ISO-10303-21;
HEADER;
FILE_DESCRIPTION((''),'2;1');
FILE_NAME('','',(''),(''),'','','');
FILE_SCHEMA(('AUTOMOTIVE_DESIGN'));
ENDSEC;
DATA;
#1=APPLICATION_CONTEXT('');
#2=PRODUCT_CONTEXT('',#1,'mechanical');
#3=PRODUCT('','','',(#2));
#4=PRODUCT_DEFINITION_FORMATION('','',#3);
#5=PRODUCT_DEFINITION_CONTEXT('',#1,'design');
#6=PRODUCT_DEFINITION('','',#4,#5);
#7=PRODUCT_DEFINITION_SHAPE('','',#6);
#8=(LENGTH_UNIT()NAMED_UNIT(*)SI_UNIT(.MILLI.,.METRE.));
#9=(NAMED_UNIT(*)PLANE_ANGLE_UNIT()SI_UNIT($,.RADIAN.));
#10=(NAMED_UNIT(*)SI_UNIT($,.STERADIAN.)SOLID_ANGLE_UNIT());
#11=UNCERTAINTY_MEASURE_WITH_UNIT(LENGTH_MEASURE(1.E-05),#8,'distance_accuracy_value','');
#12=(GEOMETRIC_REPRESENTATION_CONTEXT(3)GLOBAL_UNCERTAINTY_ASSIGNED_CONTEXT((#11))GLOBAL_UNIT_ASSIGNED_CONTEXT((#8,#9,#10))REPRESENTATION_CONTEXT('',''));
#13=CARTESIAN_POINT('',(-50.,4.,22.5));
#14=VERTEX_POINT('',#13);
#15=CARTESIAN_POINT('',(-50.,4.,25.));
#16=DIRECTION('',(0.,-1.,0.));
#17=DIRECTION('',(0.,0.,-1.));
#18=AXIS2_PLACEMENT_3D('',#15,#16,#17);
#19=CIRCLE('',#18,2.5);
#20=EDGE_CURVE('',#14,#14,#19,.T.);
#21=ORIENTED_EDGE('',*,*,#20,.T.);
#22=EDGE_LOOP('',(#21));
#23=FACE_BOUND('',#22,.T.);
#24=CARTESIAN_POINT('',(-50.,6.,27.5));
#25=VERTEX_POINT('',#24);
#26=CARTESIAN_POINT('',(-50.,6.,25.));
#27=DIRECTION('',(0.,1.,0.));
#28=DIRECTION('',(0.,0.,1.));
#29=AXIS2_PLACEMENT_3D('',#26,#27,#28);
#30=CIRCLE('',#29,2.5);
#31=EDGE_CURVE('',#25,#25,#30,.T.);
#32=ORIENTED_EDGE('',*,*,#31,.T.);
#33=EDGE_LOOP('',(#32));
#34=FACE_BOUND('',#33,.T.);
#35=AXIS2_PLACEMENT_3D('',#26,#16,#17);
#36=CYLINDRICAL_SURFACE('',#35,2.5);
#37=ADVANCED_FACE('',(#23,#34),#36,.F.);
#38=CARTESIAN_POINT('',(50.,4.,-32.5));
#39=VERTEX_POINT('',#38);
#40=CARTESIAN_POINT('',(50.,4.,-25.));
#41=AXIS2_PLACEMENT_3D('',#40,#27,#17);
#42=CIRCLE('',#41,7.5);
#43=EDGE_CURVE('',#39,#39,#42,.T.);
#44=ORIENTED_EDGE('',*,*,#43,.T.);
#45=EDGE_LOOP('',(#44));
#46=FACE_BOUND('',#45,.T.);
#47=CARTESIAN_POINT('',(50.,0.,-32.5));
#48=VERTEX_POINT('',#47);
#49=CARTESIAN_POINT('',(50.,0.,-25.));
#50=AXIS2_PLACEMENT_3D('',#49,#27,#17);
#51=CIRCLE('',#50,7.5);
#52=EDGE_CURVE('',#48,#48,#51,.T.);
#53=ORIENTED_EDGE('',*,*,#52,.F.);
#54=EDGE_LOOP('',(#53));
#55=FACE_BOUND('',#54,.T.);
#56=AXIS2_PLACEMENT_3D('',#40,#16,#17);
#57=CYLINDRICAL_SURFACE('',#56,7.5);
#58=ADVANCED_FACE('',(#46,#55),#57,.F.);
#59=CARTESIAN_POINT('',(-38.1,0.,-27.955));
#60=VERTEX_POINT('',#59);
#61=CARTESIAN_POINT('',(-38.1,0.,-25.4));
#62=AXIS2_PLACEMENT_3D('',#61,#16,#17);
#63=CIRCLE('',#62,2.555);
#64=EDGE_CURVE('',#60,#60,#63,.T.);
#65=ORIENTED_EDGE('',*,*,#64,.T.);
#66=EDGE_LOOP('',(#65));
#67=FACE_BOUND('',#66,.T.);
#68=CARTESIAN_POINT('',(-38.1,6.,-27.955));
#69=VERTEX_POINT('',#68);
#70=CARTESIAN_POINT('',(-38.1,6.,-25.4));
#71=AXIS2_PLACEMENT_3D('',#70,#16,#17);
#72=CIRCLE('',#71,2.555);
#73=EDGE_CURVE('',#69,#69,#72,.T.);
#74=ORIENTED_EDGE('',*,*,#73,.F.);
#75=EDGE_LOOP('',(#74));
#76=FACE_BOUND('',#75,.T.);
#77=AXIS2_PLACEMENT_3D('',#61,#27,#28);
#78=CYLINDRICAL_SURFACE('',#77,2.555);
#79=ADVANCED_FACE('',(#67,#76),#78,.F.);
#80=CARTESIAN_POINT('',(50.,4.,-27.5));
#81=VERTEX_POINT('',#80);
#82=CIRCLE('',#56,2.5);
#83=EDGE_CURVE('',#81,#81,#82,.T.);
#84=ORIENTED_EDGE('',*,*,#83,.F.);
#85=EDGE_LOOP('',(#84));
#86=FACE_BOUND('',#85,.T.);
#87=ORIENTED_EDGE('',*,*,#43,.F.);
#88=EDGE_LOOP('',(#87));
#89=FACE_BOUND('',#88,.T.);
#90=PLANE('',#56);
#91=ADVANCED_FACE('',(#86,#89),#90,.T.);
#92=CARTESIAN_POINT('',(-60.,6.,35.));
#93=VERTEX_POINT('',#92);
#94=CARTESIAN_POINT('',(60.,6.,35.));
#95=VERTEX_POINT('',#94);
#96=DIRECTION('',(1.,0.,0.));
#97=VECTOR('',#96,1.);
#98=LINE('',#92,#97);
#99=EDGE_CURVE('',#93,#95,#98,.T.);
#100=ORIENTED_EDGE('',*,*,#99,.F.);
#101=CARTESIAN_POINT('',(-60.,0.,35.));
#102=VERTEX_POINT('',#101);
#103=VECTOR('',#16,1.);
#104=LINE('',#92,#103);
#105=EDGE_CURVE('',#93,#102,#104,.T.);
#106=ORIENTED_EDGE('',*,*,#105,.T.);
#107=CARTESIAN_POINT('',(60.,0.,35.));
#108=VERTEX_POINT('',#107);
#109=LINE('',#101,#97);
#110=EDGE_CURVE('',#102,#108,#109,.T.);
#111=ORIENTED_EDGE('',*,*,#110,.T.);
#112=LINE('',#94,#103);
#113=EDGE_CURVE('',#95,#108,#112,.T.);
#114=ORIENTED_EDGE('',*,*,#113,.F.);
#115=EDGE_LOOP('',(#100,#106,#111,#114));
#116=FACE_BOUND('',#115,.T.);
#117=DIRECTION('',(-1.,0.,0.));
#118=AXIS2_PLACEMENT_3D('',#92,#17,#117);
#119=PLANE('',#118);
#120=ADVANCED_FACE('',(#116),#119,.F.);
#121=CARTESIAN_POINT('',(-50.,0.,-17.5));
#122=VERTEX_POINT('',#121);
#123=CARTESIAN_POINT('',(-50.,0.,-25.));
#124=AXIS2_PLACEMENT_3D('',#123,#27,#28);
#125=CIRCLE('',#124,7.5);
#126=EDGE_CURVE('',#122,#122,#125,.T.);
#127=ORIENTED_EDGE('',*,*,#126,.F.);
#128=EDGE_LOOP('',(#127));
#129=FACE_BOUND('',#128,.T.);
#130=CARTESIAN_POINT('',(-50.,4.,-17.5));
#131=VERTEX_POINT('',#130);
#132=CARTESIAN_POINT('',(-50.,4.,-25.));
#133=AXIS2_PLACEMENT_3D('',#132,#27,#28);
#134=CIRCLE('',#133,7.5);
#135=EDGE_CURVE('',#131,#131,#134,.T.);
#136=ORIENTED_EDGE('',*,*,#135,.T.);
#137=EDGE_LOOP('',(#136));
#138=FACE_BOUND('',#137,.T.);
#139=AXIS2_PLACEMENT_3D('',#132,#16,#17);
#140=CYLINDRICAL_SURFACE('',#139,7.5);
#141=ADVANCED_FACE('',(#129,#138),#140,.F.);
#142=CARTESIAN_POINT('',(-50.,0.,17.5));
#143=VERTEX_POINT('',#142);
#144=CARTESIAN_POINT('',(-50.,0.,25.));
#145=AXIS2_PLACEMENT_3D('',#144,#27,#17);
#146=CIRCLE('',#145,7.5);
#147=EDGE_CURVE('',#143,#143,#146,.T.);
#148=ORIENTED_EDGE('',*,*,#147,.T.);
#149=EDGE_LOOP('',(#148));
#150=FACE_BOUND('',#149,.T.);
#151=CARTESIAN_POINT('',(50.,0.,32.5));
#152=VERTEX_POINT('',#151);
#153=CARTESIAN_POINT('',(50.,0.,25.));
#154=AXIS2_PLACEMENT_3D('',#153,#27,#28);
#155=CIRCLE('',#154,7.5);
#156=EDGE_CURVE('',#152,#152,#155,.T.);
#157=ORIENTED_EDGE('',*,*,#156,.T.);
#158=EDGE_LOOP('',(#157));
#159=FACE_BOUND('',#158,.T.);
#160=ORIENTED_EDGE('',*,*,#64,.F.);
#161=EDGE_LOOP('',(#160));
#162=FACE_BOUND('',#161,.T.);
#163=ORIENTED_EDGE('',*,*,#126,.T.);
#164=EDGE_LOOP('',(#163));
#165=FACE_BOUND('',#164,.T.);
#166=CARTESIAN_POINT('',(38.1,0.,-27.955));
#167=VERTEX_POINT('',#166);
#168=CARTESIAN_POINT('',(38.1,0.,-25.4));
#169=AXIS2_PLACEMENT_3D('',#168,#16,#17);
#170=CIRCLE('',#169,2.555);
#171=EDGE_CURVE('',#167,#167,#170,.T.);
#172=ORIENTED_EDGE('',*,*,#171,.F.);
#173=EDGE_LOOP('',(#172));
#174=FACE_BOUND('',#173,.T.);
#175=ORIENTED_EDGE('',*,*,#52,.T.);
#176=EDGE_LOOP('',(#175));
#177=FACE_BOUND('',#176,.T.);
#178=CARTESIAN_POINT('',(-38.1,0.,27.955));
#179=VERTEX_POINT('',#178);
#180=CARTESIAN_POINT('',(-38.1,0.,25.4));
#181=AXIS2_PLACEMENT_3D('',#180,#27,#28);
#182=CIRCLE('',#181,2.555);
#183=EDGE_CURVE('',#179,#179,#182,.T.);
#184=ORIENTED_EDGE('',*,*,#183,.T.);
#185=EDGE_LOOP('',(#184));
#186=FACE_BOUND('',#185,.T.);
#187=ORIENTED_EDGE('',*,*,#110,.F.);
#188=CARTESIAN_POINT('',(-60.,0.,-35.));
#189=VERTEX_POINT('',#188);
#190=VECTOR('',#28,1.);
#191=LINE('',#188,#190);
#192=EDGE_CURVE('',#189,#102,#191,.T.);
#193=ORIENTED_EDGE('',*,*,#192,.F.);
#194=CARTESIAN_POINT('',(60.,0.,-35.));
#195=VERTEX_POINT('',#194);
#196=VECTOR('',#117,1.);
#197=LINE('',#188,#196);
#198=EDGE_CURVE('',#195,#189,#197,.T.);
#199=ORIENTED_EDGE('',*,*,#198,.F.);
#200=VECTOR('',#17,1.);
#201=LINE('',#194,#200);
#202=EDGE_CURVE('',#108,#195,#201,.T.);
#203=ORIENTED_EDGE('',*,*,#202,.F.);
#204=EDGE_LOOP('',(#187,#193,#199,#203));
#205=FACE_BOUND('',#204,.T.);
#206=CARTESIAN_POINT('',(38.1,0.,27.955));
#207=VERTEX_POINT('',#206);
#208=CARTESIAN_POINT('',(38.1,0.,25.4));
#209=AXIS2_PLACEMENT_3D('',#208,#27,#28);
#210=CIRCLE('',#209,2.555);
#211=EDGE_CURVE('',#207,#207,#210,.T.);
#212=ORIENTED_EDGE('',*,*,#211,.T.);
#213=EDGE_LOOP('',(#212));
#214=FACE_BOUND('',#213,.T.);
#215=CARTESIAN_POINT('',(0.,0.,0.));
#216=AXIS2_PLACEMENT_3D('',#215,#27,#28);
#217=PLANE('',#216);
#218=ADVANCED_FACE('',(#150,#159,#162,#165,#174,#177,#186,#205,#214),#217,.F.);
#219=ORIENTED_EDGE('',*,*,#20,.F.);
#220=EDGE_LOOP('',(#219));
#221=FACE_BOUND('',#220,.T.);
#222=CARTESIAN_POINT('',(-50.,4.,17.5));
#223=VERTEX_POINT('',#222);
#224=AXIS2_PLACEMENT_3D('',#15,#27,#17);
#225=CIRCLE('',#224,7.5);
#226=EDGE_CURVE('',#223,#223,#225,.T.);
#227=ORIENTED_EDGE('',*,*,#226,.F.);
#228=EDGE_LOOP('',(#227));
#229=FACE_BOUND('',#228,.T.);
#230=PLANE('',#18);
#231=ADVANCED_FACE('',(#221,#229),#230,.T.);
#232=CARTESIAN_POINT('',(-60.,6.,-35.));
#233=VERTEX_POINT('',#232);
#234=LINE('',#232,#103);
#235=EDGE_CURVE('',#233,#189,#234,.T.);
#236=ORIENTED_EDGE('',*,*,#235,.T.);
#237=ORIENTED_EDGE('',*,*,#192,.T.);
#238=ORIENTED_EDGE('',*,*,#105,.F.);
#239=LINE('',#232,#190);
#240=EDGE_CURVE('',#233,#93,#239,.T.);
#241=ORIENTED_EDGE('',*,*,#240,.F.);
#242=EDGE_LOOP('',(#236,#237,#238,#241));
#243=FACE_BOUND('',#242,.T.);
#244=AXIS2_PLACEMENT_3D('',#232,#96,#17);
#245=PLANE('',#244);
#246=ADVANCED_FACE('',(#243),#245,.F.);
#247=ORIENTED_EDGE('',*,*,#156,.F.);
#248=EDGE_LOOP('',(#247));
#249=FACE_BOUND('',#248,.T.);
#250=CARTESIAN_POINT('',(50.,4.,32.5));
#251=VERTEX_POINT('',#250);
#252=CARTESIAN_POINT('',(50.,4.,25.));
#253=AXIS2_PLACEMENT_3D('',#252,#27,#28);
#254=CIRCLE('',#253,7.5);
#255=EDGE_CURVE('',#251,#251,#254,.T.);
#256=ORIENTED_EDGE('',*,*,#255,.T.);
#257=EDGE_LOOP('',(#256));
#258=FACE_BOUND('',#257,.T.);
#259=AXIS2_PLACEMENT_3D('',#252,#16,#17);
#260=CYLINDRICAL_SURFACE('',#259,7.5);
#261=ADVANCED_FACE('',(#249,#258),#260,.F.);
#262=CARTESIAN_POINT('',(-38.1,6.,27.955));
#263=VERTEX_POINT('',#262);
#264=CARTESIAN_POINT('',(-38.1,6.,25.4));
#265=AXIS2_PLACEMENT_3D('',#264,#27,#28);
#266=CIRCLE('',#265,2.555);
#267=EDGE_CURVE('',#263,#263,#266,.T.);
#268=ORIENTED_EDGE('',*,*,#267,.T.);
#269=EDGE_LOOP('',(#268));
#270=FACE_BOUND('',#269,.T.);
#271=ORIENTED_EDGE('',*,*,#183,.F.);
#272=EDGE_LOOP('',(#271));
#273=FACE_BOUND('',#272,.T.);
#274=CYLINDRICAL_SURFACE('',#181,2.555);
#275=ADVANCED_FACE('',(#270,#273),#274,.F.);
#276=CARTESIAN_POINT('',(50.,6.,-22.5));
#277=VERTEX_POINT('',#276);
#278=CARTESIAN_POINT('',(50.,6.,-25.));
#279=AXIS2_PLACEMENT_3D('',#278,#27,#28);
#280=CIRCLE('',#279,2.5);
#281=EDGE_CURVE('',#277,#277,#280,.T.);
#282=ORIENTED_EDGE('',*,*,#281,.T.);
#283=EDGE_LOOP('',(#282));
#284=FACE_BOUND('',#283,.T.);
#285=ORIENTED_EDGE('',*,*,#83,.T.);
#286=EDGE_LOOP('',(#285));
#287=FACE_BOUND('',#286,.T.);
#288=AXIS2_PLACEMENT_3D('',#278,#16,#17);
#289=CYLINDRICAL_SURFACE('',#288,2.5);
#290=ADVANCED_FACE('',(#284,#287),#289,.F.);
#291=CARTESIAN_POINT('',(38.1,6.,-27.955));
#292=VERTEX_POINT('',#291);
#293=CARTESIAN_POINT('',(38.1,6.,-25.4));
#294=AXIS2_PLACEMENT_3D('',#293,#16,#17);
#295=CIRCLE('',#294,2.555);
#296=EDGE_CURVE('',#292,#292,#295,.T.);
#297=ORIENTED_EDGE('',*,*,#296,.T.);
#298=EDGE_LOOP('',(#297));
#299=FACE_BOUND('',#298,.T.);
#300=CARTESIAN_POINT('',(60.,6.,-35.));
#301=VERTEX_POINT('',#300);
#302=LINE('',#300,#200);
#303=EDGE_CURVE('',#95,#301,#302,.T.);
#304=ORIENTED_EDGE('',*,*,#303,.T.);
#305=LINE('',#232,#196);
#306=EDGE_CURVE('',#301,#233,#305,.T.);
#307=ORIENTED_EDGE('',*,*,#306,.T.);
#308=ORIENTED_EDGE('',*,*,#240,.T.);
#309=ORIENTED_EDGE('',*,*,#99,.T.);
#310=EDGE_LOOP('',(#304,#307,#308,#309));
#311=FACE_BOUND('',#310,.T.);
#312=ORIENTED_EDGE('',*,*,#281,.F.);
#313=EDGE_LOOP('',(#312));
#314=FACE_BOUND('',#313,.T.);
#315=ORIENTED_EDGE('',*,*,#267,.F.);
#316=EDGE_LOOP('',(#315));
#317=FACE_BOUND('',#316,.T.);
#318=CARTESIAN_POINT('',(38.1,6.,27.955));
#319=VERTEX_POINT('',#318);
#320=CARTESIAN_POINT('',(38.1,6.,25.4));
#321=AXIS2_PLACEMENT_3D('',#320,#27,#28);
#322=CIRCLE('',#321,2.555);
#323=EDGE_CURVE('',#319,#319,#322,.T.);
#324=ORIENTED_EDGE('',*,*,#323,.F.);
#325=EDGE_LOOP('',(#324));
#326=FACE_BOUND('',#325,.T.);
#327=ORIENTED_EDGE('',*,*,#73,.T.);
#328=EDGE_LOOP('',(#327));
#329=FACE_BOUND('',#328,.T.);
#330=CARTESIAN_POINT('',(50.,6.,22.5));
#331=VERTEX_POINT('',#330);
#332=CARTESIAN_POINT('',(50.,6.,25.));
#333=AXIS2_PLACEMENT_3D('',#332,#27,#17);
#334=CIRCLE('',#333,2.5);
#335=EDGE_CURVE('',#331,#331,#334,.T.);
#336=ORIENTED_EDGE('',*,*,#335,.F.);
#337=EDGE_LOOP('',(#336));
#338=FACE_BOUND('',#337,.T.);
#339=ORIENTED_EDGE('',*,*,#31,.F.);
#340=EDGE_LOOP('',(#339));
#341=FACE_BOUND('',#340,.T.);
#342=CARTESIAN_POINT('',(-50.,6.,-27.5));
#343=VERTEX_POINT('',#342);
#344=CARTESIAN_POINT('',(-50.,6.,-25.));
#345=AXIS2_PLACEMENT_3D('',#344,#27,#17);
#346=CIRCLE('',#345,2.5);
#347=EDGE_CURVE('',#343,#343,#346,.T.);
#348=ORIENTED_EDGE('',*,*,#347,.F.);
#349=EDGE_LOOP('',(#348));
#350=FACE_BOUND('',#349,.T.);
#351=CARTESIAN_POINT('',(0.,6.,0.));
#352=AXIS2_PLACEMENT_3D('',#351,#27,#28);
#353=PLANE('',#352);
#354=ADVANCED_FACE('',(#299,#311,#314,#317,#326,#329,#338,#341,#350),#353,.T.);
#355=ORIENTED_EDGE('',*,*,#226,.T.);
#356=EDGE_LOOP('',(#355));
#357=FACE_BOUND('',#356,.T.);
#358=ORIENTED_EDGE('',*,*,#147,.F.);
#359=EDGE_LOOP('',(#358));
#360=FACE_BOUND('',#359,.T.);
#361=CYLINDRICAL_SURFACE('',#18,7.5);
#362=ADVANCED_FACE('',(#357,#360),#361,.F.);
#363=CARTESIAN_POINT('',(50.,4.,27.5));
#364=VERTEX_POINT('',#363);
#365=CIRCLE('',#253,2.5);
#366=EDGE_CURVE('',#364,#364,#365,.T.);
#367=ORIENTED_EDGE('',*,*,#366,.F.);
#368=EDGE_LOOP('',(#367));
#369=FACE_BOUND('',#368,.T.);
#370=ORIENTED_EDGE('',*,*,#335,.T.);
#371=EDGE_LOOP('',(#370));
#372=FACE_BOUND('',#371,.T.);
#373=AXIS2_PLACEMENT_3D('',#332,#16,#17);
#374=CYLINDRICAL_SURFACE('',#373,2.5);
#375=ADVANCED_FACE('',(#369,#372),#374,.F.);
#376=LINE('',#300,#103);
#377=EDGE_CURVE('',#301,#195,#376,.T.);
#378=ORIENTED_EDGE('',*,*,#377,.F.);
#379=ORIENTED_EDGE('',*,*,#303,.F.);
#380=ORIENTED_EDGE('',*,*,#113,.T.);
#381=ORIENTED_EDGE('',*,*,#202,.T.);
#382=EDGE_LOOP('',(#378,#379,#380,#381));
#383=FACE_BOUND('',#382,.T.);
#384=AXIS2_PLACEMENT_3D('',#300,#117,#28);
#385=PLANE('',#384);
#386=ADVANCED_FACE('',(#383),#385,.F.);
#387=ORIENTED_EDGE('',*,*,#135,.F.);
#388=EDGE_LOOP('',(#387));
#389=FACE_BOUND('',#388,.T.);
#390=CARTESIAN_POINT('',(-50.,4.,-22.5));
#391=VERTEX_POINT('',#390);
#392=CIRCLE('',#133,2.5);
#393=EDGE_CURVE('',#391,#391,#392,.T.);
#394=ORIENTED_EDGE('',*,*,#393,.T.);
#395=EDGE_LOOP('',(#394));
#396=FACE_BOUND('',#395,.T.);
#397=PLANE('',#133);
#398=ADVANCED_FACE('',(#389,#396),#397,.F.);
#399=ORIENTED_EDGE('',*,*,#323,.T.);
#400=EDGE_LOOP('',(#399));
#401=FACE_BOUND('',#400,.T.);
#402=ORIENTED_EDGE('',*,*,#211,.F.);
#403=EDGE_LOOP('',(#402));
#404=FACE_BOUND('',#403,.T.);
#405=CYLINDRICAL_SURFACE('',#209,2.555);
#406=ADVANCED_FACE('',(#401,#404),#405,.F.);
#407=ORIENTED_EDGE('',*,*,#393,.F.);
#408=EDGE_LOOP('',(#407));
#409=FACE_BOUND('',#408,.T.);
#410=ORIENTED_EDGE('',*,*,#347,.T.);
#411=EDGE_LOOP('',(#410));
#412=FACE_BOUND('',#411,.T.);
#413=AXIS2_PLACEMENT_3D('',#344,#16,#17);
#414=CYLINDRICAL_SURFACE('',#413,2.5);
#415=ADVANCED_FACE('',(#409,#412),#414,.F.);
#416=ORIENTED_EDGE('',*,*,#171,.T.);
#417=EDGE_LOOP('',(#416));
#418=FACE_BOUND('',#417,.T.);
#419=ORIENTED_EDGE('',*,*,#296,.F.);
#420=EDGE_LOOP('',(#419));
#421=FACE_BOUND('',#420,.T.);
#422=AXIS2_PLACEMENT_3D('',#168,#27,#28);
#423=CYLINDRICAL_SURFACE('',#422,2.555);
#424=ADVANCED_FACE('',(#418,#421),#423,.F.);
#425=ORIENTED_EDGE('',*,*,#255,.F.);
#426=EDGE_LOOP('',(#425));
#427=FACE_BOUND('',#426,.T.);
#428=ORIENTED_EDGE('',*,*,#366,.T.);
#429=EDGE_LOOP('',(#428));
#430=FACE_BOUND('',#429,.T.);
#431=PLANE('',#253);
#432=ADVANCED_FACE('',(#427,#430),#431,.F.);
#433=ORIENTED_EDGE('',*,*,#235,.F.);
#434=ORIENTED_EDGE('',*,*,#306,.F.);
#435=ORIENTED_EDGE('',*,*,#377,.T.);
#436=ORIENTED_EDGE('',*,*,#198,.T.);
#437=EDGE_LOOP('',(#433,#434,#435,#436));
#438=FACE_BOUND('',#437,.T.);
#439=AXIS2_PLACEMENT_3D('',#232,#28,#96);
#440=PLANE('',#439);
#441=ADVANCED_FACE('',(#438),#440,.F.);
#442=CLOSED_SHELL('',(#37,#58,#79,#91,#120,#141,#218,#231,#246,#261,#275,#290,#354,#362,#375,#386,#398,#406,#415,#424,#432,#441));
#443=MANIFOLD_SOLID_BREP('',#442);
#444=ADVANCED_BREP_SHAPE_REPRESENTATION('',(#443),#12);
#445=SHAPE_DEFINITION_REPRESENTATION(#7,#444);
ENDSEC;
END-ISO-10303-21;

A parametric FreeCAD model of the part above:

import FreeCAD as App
import Part
import Sketcher

V = App.Vector

doc = App.newDocument("Part")
params = doc.addObject("Spreadsheet::Sheet", "Params")
for row, (alias, value) in enumerate([
    ("sketch1_diameter", "5 mm"),
    ("sketch1_width", "120 mm"),
    ("sketch1_height", "70 mm"),
    ("pad1_length", "6 mm"),
    ("sketch2_diameter", "5.11 mm"),
    ("sketch3_diameter", "15 mm"),
    ("pocket2_length", "4 mm"),
], start=1):
    params.set(f"A{row}", alias)
    params.set(f"B{row}", "=" + value)
    params.setAlias(f"B{row}", alias)

body = doc.addObject("PartDesign::Body", "Body")

# Sketch on XZ plane
sketch1 = doc.addObject("Sketcher::SketchObject", "Sketch")
body.addObject(sketch1)
sketch1.AttachmentSupport = (doc.XZ_Plane, [""])
sketch1.MapMode = "FlatFace"
sketch1.addGeometry([
    Part.LineSegment(V(-60, -35, 0), V(-60, 35, 0)),  # 0
    Part.LineSegment(V(-60, 35, 0), V(60, 35, 0)),  # 1
    Part.LineSegment(V(60, 35, 0), V(60, -35, 0)),  # 2
    Part.LineSegment(V(60, -35, 0), V(-60, -35, 0)),  # 3
    Part.Circle(V(-50, 25, 0), V(0, 0, 1), 2.5),  # 4
    Part.Circle(V(50, 25, 0), V(0, 0, 1), 2.5),  # 5
    Part.Circle(V(-50, -25, 0), V(0, 0, 1), 2.5),  # 6
    Part.Circle(V(50, -25, 0), V(0, 0, 1), 2.5),  # 7
], False)
sketch1.addConstraint([
    Sketcher.Constraint("Coincident", 0, 2, 1, 1),
    Sketcher.Constraint("Coincident", 1, 2, 2, 1),
    Sketcher.Constraint("Coincident", 2, 2, 3, 1),
    Sketcher.Constraint("Coincident", 3, 2, 0, 1),
    Sketcher.Constraint("Vertical", 0),
    Sketcher.Constraint("Horizontal", 1),
    Sketcher.Constraint("Vertical", 2),
    Sketcher.Constraint("Horizontal", 3),
    Sketcher.Constraint("Equal", 4, 5),
    Sketcher.Constraint("Equal", 5, 6),
    Sketcher.Constraint("Equal", 6, 7),
    Sketcher.Constraint("Symmetric", 5, 3, 6, 3, -1, 1),
    Sketcher.Constraint("Symmetric", 4, 3, 7, 3, -1, 1),
    Sketcher.Constraint("Symmetric", 0, 2, 2, 2, -1, 1),
    Sketcher.Constraint("Symmetric", 4, 3, 5, 3, -2),
    Sketcher.Constraint("Diameter", 4, 5.0),
    Sketcher.Constraint("DistanceX", 1, 1, 1, 2, 120.0),
    Sketcher.Constraint("DistanceY", 0, 1, 0, 2, 70.0),
    Sketcher.Constraint("DistanceX", 4, 3, -1, 1, 50.0),
    Sketcher.Constraint("DistanceY", -1, 1, 4, 3, 25.0),
])
sketch1.setExpression("Constraints[15]", "Params.sketch1_diameter")
sketch1.setExpression("Constraints[16]", "Params.sketch1_width")
sketch1.setExpression("Constraints[17]", "Params.sketch1_height")
pad1 = doc.addObject("PartDesign::Pad", "Pad")
body.addObject(pad1)
pad1.Profile = sketch1
pad1.setExpression("Length", "Params.pad1_length")
pad1.Reversed = True

# Sketch on XZ plane
sketch2 = doc.addObject("Sketcher::SketchObject", "Sketch001")
body.addObject(sketch2)
sketch2.AttachmentSupport = (doc.XZ_Plane, [""])
sketch2.MapMode = "FlatFace"
sketch2.AttachmentOffset = App.Placement(V(0, 0, -6), App.Rotation())
sketch2.addGeometry([
    Part.Circle(V(38.1, 25.4, 0), V(0, 0, 1), 2.6),
    Part.Circle(V(-38.1, 25.4, 0), V(0, 0, 1), 2.6),
    Part.Circle(V(38.1, -25.4, 0), V(0, 0, 1), 2.6),
    Part.Circle(V(-38.1, -25.4, 0), V(0, 0, 1), 2.6),
], False)
sketch2.addConstraint([
    Sketcher.Constraint("Equal", 0, 1),
    Sketcher.Constraint("Equal", 1, 2),
    Sketcher.Constraint("Equal", 2, 3),
    Sketcher.Constraint("Symmetric", 1, 3, 2, 3, -1, 1),
    Sketcher.Constraint("Symmetric", 0, 3, 3, 3, -1, 1),
    Sketcher.Constraint("Symmetric", 0, 3, 1, 3, -2),
    Sketcher.Constraint("Diameter", 0, 5.11),
    Sketcher.Constraint("DistanceX", -1, 1, 0, 3, 38.1),
    Sketcher.Constraint("DistanceY", -1, 1, 0, 3, 25.4),
])
sketch2.setExpression("Constraints[6]", "Params.sketch2_diameter")
pocket1 = doc.addObject("PartDesign::Pocket", "Pocket")
body.addObject(pocket1)
pocket1.Profile = sketch2
pocket1.Type = "ThroughAll"
pocket1.Reversed = True

# Sketch on XZ plane
sketch3 = doc.addObject("Sketcher::SketchObject", "Sketch002")
body.addObject(sketch3)
sketch3.AttachmentSupport = (doc.XZ_Plane, [""])
sketch3.MapMode = "FlatFace"
sketch3.addGeometry([
    Part.Circle(V(-50, -25, 0), V(0, 0, 1), 8),
    Part.Circle(V(50, -25, 0), V(0, 0, 1), 8),
    Part.Circle(V(50, 25, 0), V(0, 0, 1), 8),
    Part.Circle(V(-50, 25, 0), V(0, 0, 1), 8),
], False)
sketch3.addConstraint([
    Sketcher.Constraint("Equal", 0, 1),
    Sketcher.Constraint("Equal", 1, 2),
    Sketcher.Constraint("Equal", 2, 3),
    Sketcher.Constraint("Symmetric", 0, 3, 2, 3, -1, 1),
    Sketcher.Constraint("Symmetric", 1, 3, 3, 3, -1, 1),
    Sketcher.Constraint("Symmetric", 0, 3, 1, 3, -2),
    Sketcher.Constraint("Diameter", 0, 15.0),
    Sketcher.Constraint("DistanceX", 0, 3, -1, 1, 50.0),
    Sketcher.Constraint("DistanceY", 0, 3, -1, 1, 25.0),
])
sketch3.setExpression("Constraints[6]", "Params.sketch3_diameter")
pocket2 = doc.addObject("PartDesign::Pocket", "Pocket001")
body.addObject(pocket2)
pocket2.Profile = sketch3
pocket2.setExpression("Length", "Params.pocket2_length")

doc.recompute()
